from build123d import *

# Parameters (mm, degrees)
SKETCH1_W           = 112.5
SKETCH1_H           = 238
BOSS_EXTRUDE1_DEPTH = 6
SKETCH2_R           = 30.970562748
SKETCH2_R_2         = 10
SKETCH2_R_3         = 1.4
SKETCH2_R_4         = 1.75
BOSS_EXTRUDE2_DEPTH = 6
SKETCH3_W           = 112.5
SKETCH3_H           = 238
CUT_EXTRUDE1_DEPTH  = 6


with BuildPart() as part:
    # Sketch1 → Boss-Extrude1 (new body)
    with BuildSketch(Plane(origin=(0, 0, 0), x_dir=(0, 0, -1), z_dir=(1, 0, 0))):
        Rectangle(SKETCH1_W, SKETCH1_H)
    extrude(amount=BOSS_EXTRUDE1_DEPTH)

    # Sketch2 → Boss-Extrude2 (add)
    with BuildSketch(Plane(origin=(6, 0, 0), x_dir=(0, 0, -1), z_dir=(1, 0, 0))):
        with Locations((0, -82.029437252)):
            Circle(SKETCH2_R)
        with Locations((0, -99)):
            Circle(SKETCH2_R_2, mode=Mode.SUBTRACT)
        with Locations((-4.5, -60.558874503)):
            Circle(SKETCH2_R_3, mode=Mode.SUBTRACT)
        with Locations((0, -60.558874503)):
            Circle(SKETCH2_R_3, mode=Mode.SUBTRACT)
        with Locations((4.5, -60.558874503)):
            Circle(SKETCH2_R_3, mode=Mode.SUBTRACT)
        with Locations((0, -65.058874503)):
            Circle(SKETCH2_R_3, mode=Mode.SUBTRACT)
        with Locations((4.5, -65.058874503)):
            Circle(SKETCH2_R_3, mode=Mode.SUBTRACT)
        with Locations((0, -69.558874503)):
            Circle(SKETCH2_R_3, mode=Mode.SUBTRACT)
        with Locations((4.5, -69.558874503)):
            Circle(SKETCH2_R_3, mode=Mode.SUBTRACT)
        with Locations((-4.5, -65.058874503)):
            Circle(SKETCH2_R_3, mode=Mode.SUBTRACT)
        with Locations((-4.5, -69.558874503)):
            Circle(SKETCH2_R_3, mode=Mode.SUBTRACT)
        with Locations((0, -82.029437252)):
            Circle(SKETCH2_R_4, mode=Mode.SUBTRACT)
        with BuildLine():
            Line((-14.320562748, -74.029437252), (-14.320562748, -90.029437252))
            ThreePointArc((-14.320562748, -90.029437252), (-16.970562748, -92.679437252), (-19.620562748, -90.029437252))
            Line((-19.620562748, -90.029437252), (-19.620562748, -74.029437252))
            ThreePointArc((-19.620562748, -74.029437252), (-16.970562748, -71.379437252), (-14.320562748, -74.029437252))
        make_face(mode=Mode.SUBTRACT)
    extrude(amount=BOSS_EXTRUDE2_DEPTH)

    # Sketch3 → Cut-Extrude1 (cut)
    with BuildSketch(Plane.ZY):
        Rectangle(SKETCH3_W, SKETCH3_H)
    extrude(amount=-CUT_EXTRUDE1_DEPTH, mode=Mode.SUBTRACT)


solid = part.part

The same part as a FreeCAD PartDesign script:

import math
import FreeCAD as App
import Part
import Sketcher
Q = App.Units.Quantity

doc = App.newDocument("Part")
body = doc.addObject("PartDesign::Body", "Body")

sketch1 = body.newObject("Sketcher::SketchObject", "Sketch")
sketch1.AttachmentSupport = (doc.getObject("YZ_Plane"), [""])
sketch1.MapMode = "FlatFace"
sketch1.addGeometry([
    Part.LineSegment(App.Vector(119, 56.25, 0), App.Vector(-119, 56.25, 0)),
    Part.LineSegment(App.Vector(-119, 56.25, 0), App.Vector(-119, -56.25, 0)),
    Part.LineSegment(App.Vector(-119, -56.25, 0), App.Vector(119, -56.25, 0)),
    Part.LineSegment(App.Vector(119, -56.25, 0), App.Vector(119, 56.25, 0)),
], False)
sketch1.addConstraint([
    Sketcher.Constraint("Coincident", 0, 2, 1, 1),
    Sketcher.Constraint("Coincident", 1, 2, 2, 1),
    Sketcher.Constraint("Coincident", 2, 2, 3, 1),
    Sketcher.Constraint("Coincident", 3, 2, 0, 1),
    Sketcher.Constraint("Horizontal", 0),
    Sketcher.Constraint("Vertical", 1),
    Sketcher.Constraint("Horizontal", 2),
    Sketcher.Constraint("Vertical", 3),
    Sketcher.Constraint("Symmetric", 0, 2, 2, 2, -1, 1),
    Sketcher.Constraint("DistanceX", 0, 2, 0, 1, Q("238 mm")),
    Sketcher.Constraint("DistanceY", 1, 2, 1, 1, Q("112.5 mm")),
])
pad1 = body.newObject("PartDesign::Pad", "Pad")
pad1.Profile = sketch1
pad1.Length = 6

sketch2 = body.newObject("Sketcher::SketchObject", "Sketch001")
sketch2.AttachmentSupport = (doc.getObject("YZ_Plane"), [""])
sketch2.MapMode = "FlatFace"
sketch2.AttachmentOffset = App.Placement(App.Vector(0, 0, 6), App.Rotation())
sketch2.addGeometry([
    Part.Circle(App.Vector(-82.029437, 0, 0), App.Vector(0, 0, 1), 30.970563),
    Part.Circle(App.Vector(-99, 0, 0), App.Vector(0, 0, 1), 10),
    Part.ArcOfCircle(Part.Circle(App.Vector(-74.029437, 16.970563, 0), App.Vector(0, 0, 1), 2.65), math.radians(-90), math.radians(90)),
    Part.LineSegment(App.Vector(-74.029437, 14.320563, 0), App.Vector(-90.029437, 14.320563, 0)),
    Part.ArcOfCircle(Part.Circle(App.Vector(-90.029437, 16.970563, 0), App.Vector(0, 0, 1), 2.65), math.radians(90), math.radians(270)),
    Part.LineSegment(App.Vector(-90.029437, 19.620563, 0), App.Vector(-74.029437, 19.620563, 0)),
    Part.Circle(App.Vector(-82.029437, 0, 0), App.Vector(0, 0, 1), 1.75),
    Part.Circle(App.Vector(-69.558875, 4.5, 0), App.Vector(0, 0, 1), 1.4),
    Part.Circle(App.Vector(-69.558875, 0, 0), App.Vector(0, 0, 1), 1.4),
    Part.Circle(App.Vector(-65.058875, 4.5, 0), App.Vector(0, 0, 1), 1.4),
    Part.Circle(App.Vector(-60.558875, 4.5, 0), App.Vector(0, 0, 1), 1.4),
    Part.Circle(App.Vector(-65.058875, 0, 0), App.Vector(0, 0, 1), 1.4),
    Part.Circle(App.Vector(-60.558875, 0, 0), App.Vector(0, 0, 1), 1.4),
    Part.Circle(App.Vector(-69.558875, -4.5, 0), App.Vector(0, 0, 1), 1.4),
    Part.Circle(App.Vector(-65.058875, -4.5, 0), App.Vector(0, 0, 1), 1.4),
    Part.Circle(App.Vector(-60.558875, -4.5, 0), App.Vector(0, 0, 1), 1.4),
], False)
sketch2.addConstraint([
    Sketcher.Constraint("Tangent", 2, 1, 3, 1),
    Sketcher.Constraint("Tangent", 3, 2, 4, 2),
    Sketcher.Constraint("Tangent", 4, 1, 5, 1),
    Sketcher.Constraint("Tangent", 5, 2, 2, 2),
    Sketcher.Constraint("Horizontal", 3),
    Sketcher.Constraint("Horizontal", 5),
    Sketcher.Constraint("Coincident", 6, 3, 0, 3),
    Sketcher.Constraint("Equal", 7, 8),
    Sketcher.Constraint("Equal", 8, 9),
    Sketcher.Constraint("Equal", 9, 10),
    Sketcher.Constraint("Equal", 10, 11),
    Sketcher.Constraint("Equal", 11, 12),
    Sketcher.Constraint("Equal", 12, 13),
    Sketcher.Constraint("Equal", 13, 14),
    Sketcher.Constraint("Equal", 14, 15),
    Sketcher.Constraint("Symmetric", 7, 3, 13, 3, -1),
    Sketcher.Constraint("Symmetric", 9, 3, 14, 3, -1),
    Sketcher.Constraint("Symmetric", 10, 3, 15, 3, -1),
    Sketcher.Constraint("PointOnObject", 0, 3, -1),
    Sketcher.Constraint("PointOnObject", 1, 3, -1),
    Sketcher.Constraint("PointOnObject", 8, 3, -1),
    Sketcher.Constraint("PointOnObject", 11, 3, -1),
    Sketcher.Constraint("PointOnObject", 12, 3, -1),
    Sketcher.Constraint("Horizontal", 7, 3, 9, 3),
    Sketcher.Constraint("Horizontal", 9, 3, 10, 3),
    Sketcher.Constraint("Vertical", 7, 3, 8, 3),
    Sketcher.Constraint("Vertical", 9, 3, 11, 3),
    Sketcher.Constraint("Vertical", 10, 3, 12, 3),
    Sketcher.Constraint("Diameter", 1, Q("20 mm")),
    Sketcher.Constraint("Diameter", 6, Q("3.5 mm")),
    Sketcher.Constraint("Diameter", 7, Q("2.8 mm")),
    Sketcher.Constraint("DistanceX", 3, 2, 3, 1, Q("16 mm")),
    Sketcher.Constraint("Radius", 2, Q("2.65 mm")),
    Sketcher.Constraint("DistanceX", 1, 3, -1, 1, Q("99 mm")),
    Sketcher.Constraint("DistanceX", 0, 3, 2, 3, Q("8 mm")),
    Sketcher.Constraint("DistanceX", 7, 3, 10, 3, Q("9 mm")),
    Sketcher.Constraint("DistanceY", 13, 3, 7, 3, Q("9 mm")),
    Sketcher.Constraint("DistanceX", 7, 3, 9, 3, Q("4.5 mm")),
    Sketcher.Constraint("Diameter", 0, Q("61.941125 mm")),
    Sketcher.Constraint("DistanceX", 0, 3, -1, 1, Q("82.029437 mm")),
    Sketcher.Constraint("DistanceY", -1, 1, 2, 3, Q("16.970563 mm")),
    Sketcher.Constraint("DistanceX", 7, 3, -1, 1, Q("69.558875 mm")),
])
pad2 = body.newObject("PartDesign::Pad", "Pad001")
pad2.Profile = sketch2
pad2.Length = 6

sketch3 = body.newObject("Sketcher::SketchObject", "Sketch002")
sketch3.AttachmentSupport = (doc.getObject("YZ_Plane"), [""])
sketch3.MapMode = "FlatFace"
sketch3.addGeometry([
    Part.LineSegment(App.Vector(119, -56.25, 0), App.Vector(-119, -56.25, 0)),
    Part.LineSegment(App.Vector(-119, -56.25, 0), App.Vector(-119, 56.25, 0)),
    Part.LineSegment(App.Vector(-119, 56.25, 0), App.Vector(119, 56.25, 0)),
    Part.LineSegment(App.Vector(119, 56.25, 0), App.Vector(119, -56.25, 0)),
], False)
sketch3.addConstraint([
    Sketcher.Constraint("Coincident", 0, 2, 1, 1),
    Sketcher.Constraint("Coincident", 1, 2, 2, 1),
    Sketcher.Constraint("Coincident", 2, 2, 3, 1),
    Sketcher.Constraint("Coincident", 3, 2, 0, 1),
    Sketcher.Constraint("Horizontal", 0),
    Sketcher.Constraint("Vertical", 1),
    Sketcher.Constraint("Horizontal", 2),
    Sketcher.Constraint("Vertical", 3),
    Sketcher.Constraint("Symmetric", 0, 2, 2, 2, -1, 1),
    Sketcher.Constraint("DistanceX", 0, 2, 0, 1, Q("238 mm")),
    Sketcher.Constraint("DistanceY", 1, 1, 1, 2, Q("112.5 mm")),
])
pocket1 = body.newObject("PartDesign::Pocket", "Pocket")
pocket1.Profile = sketch3
pocket1.Length = 6
pocket1.Reversed = True

doc.recompute()
